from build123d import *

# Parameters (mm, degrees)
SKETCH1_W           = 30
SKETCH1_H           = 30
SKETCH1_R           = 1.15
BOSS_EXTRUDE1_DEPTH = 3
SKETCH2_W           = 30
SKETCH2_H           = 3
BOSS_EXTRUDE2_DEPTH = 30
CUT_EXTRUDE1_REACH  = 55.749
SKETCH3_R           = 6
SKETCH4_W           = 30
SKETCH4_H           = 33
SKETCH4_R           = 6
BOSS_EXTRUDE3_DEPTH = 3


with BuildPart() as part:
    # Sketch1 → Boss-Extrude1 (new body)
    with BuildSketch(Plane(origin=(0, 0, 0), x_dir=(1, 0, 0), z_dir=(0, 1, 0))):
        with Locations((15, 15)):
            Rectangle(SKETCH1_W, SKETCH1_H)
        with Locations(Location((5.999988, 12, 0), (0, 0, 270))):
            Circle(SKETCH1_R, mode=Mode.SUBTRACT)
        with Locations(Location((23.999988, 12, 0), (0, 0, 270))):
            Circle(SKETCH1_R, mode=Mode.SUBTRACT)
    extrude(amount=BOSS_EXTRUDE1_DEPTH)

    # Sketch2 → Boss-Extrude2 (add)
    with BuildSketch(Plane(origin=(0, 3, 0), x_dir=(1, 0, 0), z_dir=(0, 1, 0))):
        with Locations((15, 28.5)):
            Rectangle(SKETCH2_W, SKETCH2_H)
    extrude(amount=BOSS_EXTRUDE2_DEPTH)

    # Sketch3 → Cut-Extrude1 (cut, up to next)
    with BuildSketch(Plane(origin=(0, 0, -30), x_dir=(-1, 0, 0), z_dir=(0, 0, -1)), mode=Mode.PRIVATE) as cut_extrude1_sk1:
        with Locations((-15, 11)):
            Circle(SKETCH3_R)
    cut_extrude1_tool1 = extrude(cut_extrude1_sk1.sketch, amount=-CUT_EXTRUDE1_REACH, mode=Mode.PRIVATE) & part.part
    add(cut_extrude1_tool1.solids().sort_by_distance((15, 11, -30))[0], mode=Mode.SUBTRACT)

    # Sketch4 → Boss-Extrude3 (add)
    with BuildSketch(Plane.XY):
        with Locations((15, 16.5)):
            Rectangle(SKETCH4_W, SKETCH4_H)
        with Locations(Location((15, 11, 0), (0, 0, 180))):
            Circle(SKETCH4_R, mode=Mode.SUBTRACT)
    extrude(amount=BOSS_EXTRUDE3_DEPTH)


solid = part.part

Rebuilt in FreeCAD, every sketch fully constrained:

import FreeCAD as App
import Part
import Sketcher
Q = App.Units.Quantity


def add_polygon(sketch, points):
    """Adds a closed chain of lines whose ends are joined by coincident constraints."""
    first, n = sketch.GeometryCount, len(points)
    for a, b in zip(points, points[1:] + points[:1]):
        sketch.addGeometry(Part.LineSegment(App.Vector(*a, 0), App.Vector(*b, 0)), False)
    for i in range(n):
        sketch.addConstraint(Sketcher.Constraint("Coincident", first + i, 2, first + (i + 1) % n, 1))

doc = App.newDocument("Part")
body = doc.addObject("PartDesign::Body", "Body")

# Sketch on XZ plane
sketch1 = body.newObject("Sketcher::SketchObject", "Sketch")
sketch1.AttachmentSupport = (doc.getObject("XZ_Plane"), [""])
sketch1.MapMode = "FlatFace"
add_polygon(sketch1, [(0, -30), (0, 0), (30, 0), (30, -30)])  # lines 0-3
sketch1.addGeometry(Part.Circle(App.Vector(6, -12, 0), App.Vector(0, 0, 1), 1.1), False)  # 4
sketch1.addGeometry(Part.Circle(App.Vector(24, -12, 0), App.Vector(0, 0, 1), 1.1), False)  # 5
sketch1.addConstraint([
    Sketcher.Constraint("Vertical", 0),
    Sketcher.Constraint("Horizontal", 1),
    Sketcher.Constraint("Vertical", 2),
    Sketcher.Constraint("Horizontal", 3),
    Sketcher.Constraint("Coincident", 0, 2, -1, 1),
    Sketcher.Constraint("Equal", 4, 5),
    Sketcher.Constraint("Horizontal", 4, 3, 5, 3),
    Sketcher.Constraint("Equal", 3, 0),
    Sketcher.Constraint("Diameter", 4, Q("2.3 mm")),
    Sketcher.Constraint("DistanceX", 1, 1, 1, 2, Q("30 mm")),
    Sketcher.Constraint("DistanceY", 4, 3, -1, 1, Q("12 mm")),
    Sketcher.Constraint("DistanceX", 4, 3, 5, 3, Q("18 mm")),
    Sketcher.Constraint("DistanceX", 4, 3, 1, 2, Q("24.000012 mm")),
])
pad1 = body.newObject("PartDesign::Pad", "Pad")
pad1.Profile = sketch1
pad1.Length = 3
pad1.Reversed = True

# Sketch on XZ plane
sketch2 = body.newObject("Sketcher::SketchObject", "Sketch001")
sketch2.AttachmentSupport = (doc.getObject("XZ_Plane"), [""])
sketch2.MapMode = "FlatFace"
sketch2.AttachmentOffset = App.Placement(App.Vector(0, 0, -3), App.Rotation())
add_polygon(sketch2, [(0, -30), (0, -27), (30, -27), (30, -30)])  # lines 0-3
sketch2.addConstraint([
    Sketcher.Constraint("Vertical", 0),
    Sketcher.Constraint("Horizontal", 1),
    Sketcher.Constraint("Vertical", 2),
    Sketcher.Constraint("Horizontal", 3),
    Sketcher.Constraint("PointOnObject", 0, 2, -2),
    Sketcher.Constraint("DistanceX", 1, 1, 1, 2, Q("30 mm")),
    Sketcher.Constraint("DistanceY", 0, 1, 0, 2, Q("3 mm")),
    Sketcher.Constraint("DistanceY", 0, 2, -1, 1, Q("27 mm")),
])
pad2 = body.newObject("PartDesign::Pad", "Pad001")
pad2.Profile = sketch2
pad2.Length = 30
pad2.Reversed = True

# Sketch on XY plane
sketch3 = body.newObject("Sketcher::SketchObject", "Sketch002")
sketch3.AttachmentSupport = (doc.getObject("XY_Plane"), [""])
sketch3.MapMode = "FlatFace"
sketch3.AttachmentOffset = App.Placement(App.Vector(0, 0, -30), App.Rotation())
sketch3.addGeometry(Part.Circle(App.Vector(15, 11, 0), App.Vector(0, 0, 1), 6), False)
sketch3.addConstraint([
    Sketcher.Constraint("Diameter", 0, Q("12 mm")),
    Sketcher.Constraint("DistanceX", -1, 1, 0, 3, Q("15 mm")),
    Sketcher.Constraint("DistanceY", -1, 1, 0, 3, Q("11 mm")),
])
pocket1 = body.newObject("PartDesign::Pocket", "Pocket")
pocket1.Profile = sketch3
pocket1.Type = "UpToFirst"
pocket1.Reversed = True

# Sketch on XY plane
sketch4 = body.newObject("Sketcher::SketchObject", "Sketch003")
sketch4.AttachmentSupport = (doc.getObject("XY_Plane"), [""])
sketch4.MapMode = "FlatFace"
add_polygon(sketch4, [(0, 33), (0, 0), (30, 0), (30, 33)])  # lines 0-3
sketch4.addGeometry(Part.Circle(App.Vector(15, 11, 0), App.Vector(0, 0, 1), 6), False)  # 4
sketch4.addConstraint([
    Sketcher.Constraint("Vertical", 0),
    Sketcher.Constraint("Horizontal", 1),
    Sketcher.Constraint("Vertical", 2),
    Sketcher.Constraint("Horizontal", 3),
    Sketcher.Constraint("Coincident", 0, 2, -1, 1),
    Sketcher.Constraint("Diameter", 4, Q("12 mm")),
    Sketcher.Constraint("DistanceX", 1, 1, 1, 2, Q("30 mm")),
    Sketcher.Constraint("DistanceY", 0, 2, 0, 1, Q("33 mm")),
    Sketcher.Constraint("DistanceX", -1, 1, 4, 3, Q("15 mm")),
    Sketcher.Constraint("DistanceY", -1, 1, 4, 3, Q("11 mm")),
])
pad3 = body.newObject("PartDesign::Pad", "Pad002")
pad3.Profile = sketch4
pad3.Length = 3

doc.recompute()
